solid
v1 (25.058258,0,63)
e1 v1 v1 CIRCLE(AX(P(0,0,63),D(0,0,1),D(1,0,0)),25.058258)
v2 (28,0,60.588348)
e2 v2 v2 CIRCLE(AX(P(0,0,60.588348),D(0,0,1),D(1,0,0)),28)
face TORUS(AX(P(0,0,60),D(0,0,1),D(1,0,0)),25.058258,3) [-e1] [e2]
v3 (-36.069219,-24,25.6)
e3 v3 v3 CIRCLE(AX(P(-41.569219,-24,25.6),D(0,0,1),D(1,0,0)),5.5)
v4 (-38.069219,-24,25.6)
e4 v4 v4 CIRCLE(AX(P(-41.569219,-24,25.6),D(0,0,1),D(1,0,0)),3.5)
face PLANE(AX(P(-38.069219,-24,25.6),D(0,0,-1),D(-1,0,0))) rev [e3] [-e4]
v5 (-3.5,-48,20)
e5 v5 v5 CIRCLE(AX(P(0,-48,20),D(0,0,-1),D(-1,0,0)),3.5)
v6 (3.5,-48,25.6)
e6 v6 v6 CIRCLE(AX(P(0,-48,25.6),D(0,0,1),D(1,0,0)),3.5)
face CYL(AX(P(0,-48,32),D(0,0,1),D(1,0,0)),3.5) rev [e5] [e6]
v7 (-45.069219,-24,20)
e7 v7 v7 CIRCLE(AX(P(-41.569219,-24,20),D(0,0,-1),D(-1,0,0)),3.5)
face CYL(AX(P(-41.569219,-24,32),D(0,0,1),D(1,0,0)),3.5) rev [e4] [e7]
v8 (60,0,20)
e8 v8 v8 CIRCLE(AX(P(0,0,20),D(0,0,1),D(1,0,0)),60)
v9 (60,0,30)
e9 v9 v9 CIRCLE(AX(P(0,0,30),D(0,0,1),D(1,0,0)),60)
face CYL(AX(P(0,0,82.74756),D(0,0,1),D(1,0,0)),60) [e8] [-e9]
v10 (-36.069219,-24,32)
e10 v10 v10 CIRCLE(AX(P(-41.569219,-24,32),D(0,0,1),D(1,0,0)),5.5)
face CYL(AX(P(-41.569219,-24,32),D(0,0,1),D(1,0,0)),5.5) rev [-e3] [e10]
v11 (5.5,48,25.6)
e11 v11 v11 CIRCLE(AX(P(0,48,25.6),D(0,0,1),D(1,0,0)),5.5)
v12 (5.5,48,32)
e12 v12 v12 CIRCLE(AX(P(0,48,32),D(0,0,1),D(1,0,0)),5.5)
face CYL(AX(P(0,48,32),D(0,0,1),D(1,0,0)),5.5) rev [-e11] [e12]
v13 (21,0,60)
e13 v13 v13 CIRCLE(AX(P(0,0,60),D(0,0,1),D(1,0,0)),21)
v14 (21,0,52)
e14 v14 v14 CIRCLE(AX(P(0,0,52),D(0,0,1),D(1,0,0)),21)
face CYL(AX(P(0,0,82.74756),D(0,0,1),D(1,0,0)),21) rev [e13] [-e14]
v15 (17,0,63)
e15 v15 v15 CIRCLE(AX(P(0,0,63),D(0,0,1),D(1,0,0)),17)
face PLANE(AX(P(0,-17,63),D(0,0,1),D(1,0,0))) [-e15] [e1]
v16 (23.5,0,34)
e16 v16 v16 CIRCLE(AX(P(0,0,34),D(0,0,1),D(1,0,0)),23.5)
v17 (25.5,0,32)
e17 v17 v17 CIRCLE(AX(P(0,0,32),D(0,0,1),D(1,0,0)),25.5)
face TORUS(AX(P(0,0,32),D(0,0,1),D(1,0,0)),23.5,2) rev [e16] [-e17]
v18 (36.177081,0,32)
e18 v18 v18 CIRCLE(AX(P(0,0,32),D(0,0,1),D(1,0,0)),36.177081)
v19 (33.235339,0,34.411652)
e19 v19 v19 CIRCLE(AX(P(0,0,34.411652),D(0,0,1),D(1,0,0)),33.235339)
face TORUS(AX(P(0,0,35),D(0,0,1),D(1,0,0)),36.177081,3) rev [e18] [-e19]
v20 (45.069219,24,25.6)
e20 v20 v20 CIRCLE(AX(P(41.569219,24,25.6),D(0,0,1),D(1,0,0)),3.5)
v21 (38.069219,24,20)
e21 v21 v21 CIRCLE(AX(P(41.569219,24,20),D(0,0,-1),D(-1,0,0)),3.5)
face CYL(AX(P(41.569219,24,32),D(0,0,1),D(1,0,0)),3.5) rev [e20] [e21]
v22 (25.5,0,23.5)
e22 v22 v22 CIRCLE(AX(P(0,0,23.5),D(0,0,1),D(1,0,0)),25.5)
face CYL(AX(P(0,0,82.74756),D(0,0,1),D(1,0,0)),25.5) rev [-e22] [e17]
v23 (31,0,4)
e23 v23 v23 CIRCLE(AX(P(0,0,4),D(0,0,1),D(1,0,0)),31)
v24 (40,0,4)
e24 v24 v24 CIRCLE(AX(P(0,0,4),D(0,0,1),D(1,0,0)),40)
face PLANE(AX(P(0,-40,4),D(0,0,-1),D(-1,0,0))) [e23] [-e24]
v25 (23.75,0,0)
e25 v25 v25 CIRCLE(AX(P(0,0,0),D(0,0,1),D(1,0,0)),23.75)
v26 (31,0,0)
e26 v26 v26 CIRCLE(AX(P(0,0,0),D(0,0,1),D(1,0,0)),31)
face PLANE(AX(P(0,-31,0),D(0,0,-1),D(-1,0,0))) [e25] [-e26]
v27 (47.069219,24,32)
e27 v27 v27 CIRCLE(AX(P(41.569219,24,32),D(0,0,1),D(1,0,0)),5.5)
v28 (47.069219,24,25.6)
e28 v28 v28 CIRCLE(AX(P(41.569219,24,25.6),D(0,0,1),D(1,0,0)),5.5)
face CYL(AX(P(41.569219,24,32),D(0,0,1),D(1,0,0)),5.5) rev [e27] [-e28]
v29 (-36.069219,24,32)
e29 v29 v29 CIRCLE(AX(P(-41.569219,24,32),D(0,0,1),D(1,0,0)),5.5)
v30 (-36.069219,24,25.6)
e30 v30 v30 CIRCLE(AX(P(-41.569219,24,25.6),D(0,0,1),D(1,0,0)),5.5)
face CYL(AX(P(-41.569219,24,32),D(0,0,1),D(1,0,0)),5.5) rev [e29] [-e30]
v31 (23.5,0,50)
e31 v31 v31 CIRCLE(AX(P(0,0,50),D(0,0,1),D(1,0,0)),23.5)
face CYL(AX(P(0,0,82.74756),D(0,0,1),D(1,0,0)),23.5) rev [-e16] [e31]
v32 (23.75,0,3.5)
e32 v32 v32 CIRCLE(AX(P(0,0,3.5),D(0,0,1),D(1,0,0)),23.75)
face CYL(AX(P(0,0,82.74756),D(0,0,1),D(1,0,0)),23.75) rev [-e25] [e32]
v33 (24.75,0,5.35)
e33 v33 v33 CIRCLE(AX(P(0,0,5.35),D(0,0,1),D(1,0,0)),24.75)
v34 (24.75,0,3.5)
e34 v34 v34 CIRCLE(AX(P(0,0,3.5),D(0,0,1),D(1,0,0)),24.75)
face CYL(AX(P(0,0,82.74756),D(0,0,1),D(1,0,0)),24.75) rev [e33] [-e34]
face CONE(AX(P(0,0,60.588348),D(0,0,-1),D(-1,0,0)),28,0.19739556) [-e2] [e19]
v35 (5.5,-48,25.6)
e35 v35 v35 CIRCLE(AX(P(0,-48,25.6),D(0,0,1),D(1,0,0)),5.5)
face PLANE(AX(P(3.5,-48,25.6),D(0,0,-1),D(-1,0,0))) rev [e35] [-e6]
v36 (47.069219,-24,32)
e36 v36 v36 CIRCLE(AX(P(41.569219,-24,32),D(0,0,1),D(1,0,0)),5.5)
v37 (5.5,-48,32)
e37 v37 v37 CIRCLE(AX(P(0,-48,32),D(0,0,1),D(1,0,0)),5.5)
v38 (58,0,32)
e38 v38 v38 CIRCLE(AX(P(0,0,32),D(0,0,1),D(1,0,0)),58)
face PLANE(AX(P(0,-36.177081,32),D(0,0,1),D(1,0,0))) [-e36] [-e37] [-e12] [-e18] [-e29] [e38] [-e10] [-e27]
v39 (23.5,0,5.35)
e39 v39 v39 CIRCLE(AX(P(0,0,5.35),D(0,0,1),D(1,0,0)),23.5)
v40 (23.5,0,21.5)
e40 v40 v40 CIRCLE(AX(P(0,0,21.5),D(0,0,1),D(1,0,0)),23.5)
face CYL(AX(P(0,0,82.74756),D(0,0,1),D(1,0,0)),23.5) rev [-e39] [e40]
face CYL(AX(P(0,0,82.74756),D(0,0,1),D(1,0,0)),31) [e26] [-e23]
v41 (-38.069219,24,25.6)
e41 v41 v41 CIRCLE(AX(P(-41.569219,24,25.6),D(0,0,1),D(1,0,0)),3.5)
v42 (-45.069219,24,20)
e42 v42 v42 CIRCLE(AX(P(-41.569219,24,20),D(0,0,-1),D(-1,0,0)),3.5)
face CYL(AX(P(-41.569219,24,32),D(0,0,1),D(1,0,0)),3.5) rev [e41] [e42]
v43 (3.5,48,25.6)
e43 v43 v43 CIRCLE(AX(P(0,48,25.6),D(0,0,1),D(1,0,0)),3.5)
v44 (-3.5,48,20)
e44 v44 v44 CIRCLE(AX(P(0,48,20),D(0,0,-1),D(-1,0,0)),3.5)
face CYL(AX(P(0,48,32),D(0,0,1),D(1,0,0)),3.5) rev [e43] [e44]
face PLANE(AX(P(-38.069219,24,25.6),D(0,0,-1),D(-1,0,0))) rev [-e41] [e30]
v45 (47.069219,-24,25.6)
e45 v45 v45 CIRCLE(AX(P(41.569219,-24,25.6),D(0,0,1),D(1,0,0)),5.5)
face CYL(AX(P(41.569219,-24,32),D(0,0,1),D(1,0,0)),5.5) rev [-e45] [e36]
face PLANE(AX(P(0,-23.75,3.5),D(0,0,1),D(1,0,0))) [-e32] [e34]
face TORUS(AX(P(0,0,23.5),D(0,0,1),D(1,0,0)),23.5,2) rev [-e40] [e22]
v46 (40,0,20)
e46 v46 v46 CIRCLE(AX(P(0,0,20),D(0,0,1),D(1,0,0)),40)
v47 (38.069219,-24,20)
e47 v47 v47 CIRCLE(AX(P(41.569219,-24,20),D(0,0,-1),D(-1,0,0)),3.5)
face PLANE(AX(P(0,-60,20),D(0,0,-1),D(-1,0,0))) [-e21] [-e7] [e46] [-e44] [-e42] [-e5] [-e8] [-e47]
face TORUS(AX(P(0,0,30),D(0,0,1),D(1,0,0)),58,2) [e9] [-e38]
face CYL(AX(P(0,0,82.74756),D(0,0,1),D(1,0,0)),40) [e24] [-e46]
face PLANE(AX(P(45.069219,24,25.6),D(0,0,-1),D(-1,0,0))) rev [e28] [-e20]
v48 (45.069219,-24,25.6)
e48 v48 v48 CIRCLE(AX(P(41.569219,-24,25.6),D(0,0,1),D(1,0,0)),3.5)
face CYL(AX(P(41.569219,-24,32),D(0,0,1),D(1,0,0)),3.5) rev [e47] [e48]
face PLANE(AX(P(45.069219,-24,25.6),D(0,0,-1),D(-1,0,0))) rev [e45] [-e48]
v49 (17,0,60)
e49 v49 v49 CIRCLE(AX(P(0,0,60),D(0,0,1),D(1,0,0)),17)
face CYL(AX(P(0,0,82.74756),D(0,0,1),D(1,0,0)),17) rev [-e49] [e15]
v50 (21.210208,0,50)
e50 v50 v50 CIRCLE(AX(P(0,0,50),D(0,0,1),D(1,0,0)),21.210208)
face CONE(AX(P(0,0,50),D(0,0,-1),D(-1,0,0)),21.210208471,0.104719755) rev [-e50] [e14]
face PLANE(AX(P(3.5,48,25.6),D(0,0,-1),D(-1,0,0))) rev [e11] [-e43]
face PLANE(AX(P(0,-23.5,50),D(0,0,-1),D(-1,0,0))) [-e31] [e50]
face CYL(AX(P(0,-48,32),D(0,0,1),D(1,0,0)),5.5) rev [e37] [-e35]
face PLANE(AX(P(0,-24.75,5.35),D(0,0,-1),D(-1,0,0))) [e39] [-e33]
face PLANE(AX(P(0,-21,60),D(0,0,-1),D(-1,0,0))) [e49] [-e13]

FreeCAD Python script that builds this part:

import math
import FreeCAD as App
import Part
import Sketcher
from FreeCAD import Vector
Q = App.Units.Quantity

doc = App.newDocument("Part")
body = doc.addObject("PartDesign::Body", "Body")

sketch1 = body.newObject("Sketcher::SketchObject", "Sketch")
sketch1.AttachmentSupport = (doc.getObject("YZ_Plane"), [""])
sketch1.MapMode = "FlatFace"
sketch1.addGeometry([
    Part.LineSegment(Vector(-17, 63, 0), Vector(-25.058258, 63, 0)),
    Part.ArcOfCircle(Part.Circle(Vector(-25.058258, 60, 0), Vector(0, 0, 1), 3), math.radians(90), math.radians(168.690068)),
    Part.LineSegment(Vector(-28, 60.588348, 0), Vector(-33.235339, 34.411652, 0)),
    Part.ArcOfCircle(Part.Circle(Vector(-36.177081, 35, 0), Vector(0, 0, 1), 3), math.radians(-90), math.radians(-11.309932)),
    Part.LineSegment(Vector(-36.177081, 32, 0), Vector(-58, 32, 0)),
    Part.ArcOfCircle(Part.Circle(Vector(-58, 30, 0), Vector(0, 0, 1), 2), math.radians(90), math.radians(180)),
    Part.LineSegment(Vector(-60, 30, 0), Vector(-60, 20, 0)),
    Part.LineSegment(Vector(-60, 20, 0), Vector(-40, 20, 0)),
    Part.LineSegment(Vector(-40, 20, 0), Vector(-40, 4, 0)),
    Part.LineSegment(Vector(-40, 4, 0), Vector(-31, 4, 0)),
    Part.LineSegment(Vector(-31, 4, 0), Vector(-31, 0, 0)),
    Part.LineSegment(Vector(-31, 0, 0), Vector(-23.75, 0, 0)),
    Part.LineSegment(Vector(-23.75, 0, 0), Vector(-23.75, 3.5, 0)),
    Part.LineSegment(Vector(-23.75, 3.5, 0), Vector(-24.75, 3.5, 0)),
    Part.LineSegment(Vector(-24.75, 3.5, 0), Vector(-24.75, 5.35, 0)),
    Part.LineSegment(Vector(-24.75, 5.35, 0), Vector(-23.5, 5.35, 0)),
    Part.LineSegment(Vector(-23.5, 5.35, 0), Vector(-23.5, 21.5, 0)),
    Part.ArcOfCircle(Part.Circle(Vector(-23.5, 23.5, 0), Vector(0, 0, 1), 2), math.radians(-180), math.radians(-90)),
    Part.LineSegment(Vector(-25.5, 23.5, 0), Vector(-25.5, 32, 0)),
    Part.ArcOfCircle(Part.Circle(Vector(-23.5, 32, 0), Vector(0, 0, 1), 2), math.radians(90), math.radians(180)),
    Part.LineSegment(Vector(-23.5, 34, 0), Vector(-23.5, 50, 0)),
    Part.LineSegment(Vector(-23.5, 50, 0), Vector(-21.210208, 50, 0)),
    Part.LineSegment(Vector(-21.210208, 50, 0), Vector(-21, 52, 0)),
    Part.LineSegment(Vector(-21, 52, 0), Vector(-21, 60, 0)),
    Part.LineSegment(Vector(-21, 60, 0), Vector(-17, 60, 0)),
    Part.LineSegment(Vector(-17, 60, 0), Vector(-17, 63, 0)),
], False)
sketch1.addConstraint([
    Sketcher.Constraint("Tangent", 0, 2, 1, 1),
    Sketcher.Constraint("Tangent", 1, 2, 2, 1),
    Sketcher.Constraint("Tangent", 2, 2, 3, 2),
    Sketcher.Constraint("Tangent", 3, 1, 4, 1),
    Sketcher.Constraint("Tangent", 4, 2, 5, 1),
    Sketcher.Constraint("Tangent", 5, 2, 6, 1),
    Sketcher.Constraint("Coincident", 6, 2, 7, 1),
    Sketcher.Constraint("Coincident", 7, 2, 8, 1),
    Sketcher.Constraint("Coincident", 8, 2, 9, 1),
    Sketcher.Constraint("Coincident", 9, 2, 10, 1),
    Sketcher.Constraint("Coincident", 10, 2, 11, 1),
    Sketcher.Constraint("Coincident", 11, 2, 12, 1),
    Sketcher.Constraint("Coincident", 12, 2, 13, 1),
    Sketcher.Constraint("Coincident", 13, 2, 14, 1),
    Sketcher.Constraint("Coincident", 14, 2, 15, 1),
    Sketcher.Constraint("Coincident", 15, 2, 16, 1),
    Sketcher.Constraint("Coincident", 16, 2, 17, 2),
    Sketcher.Constraint("Tangent", 17, 1, 18, 1),
    Sketcher.Constraint("Tangent", 18, 2, 19, 2),
    Sketcher.Constraint("Coincident", 19, 1, 20, 1),
    Sketcher.Constraint("Coincident", 20, 2, 21, 1),
    Sketcher.Constraint("Coincident", 21, 2, 22, 1),
    Sketcher.Constraint("Coincident", 22, 2, 23, 1),
    Sketcher.Constraint("Coincident", 23, 2, 24, 1),
    Sketcher.Constraint("Coincident", 24, 2, 25, 1),
    Sketcher.Constraint("Coincident", 25, 2, 0, 1),
    Sketcher.Constraint("Horizontal", 0),
    Sketcher.Constraint("Horizontal", 4),
    Sketcher.Constraint("Vertical", 6),
    Sketcher.Constraint("Horizontal", 7),
    Sketcher.Constraint("Vertical", 8),
    Sketcher.Constraint("Horizontal", 9),
    Sketcher.Constraint("Vertical", 10),
    Sketcher.Constraint("Horizontal", 11),
    Sketcher.Constraint("Vertical", 12),
    Sketcher.Constraint("Horizontal", 13),
    Sketcher.Constraint("Vertical", 14),
    Sketcher.Constraint("Horizontal", 15),
    Sketcher.Constraint("Vertical", 16),
    Sketcher.Constraint("Vertical", 18),
    Sketcher.Constraint("Vertical", 20),
    Sketcher.Constraint("Horizontal", 21),
    Sketcher.Constraint("Vertical", 23),
    Sketcher.Constraint("Horizontal", 24),
    Sketcher.Constraint("Vertical", 25),
    Sketcher.Constraint("Equal", 1, 3),
    Sketcher.Constraint("Equal", 5, 17),
    Sketcher.Constraint("Equal", 17, 19),
    Sketcher.Constraint("PointOnObject", 10, 2, -1),
    Sketcher.Constraint("Horizontal", 19, 3, 3, 1),
    Sketcher.Constraint("Horizontal", 1, 3, 23, 2),
    Sketcher.Constraint("Vertical", 19, 3, 15, 2),
    Sketcher.Constraint("Vertical", 16, 2, 19, 1),
    Sketcher.Constraint("Equal", 24, 10),
    Sketcher.Constraint("Equal", 8, 20),
    Sketcher.Constraint("Radius", 1, Q("3 mm")),
    Sketcher.Constraint("Radius", 5, Q("2 mm")),
    Sketcher.Constraint("DistanceX", 7, 1, 7, 2, Q("20 mm")),
    Sketcher.Constraint("DistanceX", 9, 1, 9, 2, Q("9 mm")),
    Sketcher.Constraint("DistanceX", 13, 2, 13, 1, Q("1 mm")),
    Sketcher.Constraint("DistanceX", 24, 1, 24, 2, Q("4 mm")),
    Sketcher.Constraint("DistanceY", 6, 2, 6, 1, Q("10 mm")),
    Sketcher.Constraint("DistanceY", 8, 2, 8, 1, Q("16 mm")),
    Sketcher.Constraint("DistanceY", 23, 1, 23, 2, Q("8 mm")),
    Sketcher.Constraint("Angle", 22, Q("84 deg")),
    Sketcher.Constraint("DistanceY", 12, 1, 12, 2, Q("3.5 mm")),
    Sketcher.Constraint("DistanceY", 18, 1, 18, 2, Q("8.5 mm")),
    Sketcher.Constraint("DistanceY", -1, 1, 1, 3, Q("60 mm")),
    Sketcher.Constraint("DistanceX", 5, 3, -1, 1, Q("58 mm")),
    Sketcher.Constraint("DistanceX", 1, 2, -1, 1, Q("28 mm")),
    Sketcher.Constraint("DistanceX", 22, 2, -1, 1, Q("21 mm")),
    Sketcher.Constraint("DistanceX", 11, 1, 11, 2, Q("7.25 mm")),
    Sketcher.Constraint("DistanceX", 15, 1, 15, 2, Q("1.25 mm")),
    Sketcher.Constraint("DistanceY", 14, 1, 14, 2, Q("1.85 mm")),
    Sketcher.Constraint("DistanceX", 4, 2, 4, 1, Q("21.822919 mm")),
])
revolution = body.newObject("PartDesign::Revolution", "Revolution")
revolution.Profile = sketch1
revolution.ReferenceAxis = (sketch1, ["V_Axis"])
revolution.Angle = 360

sketch2 = body.newObject("Sketcher::SketchObject", "Sketch001")
sketch2.AttachmentSupport = (doc.getObject("XY_Plane"), [""])
sketch2.MapMode = "FlatFace"
sketch2.AttachmentOffset = App.Placement(Vector(0, 0, 32), App.Rotation())
sketch2.addGeometry(Part.Circle(Vector(0, 48, 0), Vector(0, 0, 1), 3.5), False)
sketch2.addConstraint([
    Sketcher.Constraint("PointOnObject", 0, 3, -2),
    Sketcher.Constraint("Diameter", 0, Q("7 mm")),
    Sketcher.Constraint("DistanceY", -1, 1, 0, 3, Q("48 mm")),
])
doc.recompute()
hole = body.newObject("PartDesign::Hole", "Hole")
hole.Profile = sketch2
hole.ThreadType = "None"
hole.Diameter = 7
hole.DepthType = "Dimension"
hole.Depth = 12
hole.DrillPoint = "Flat"
hole.HoleCutType = "Counterbore"
hole.HoleCutDiameter = 11
hole.HoleCutDepth = 6.4
doc.recompute()

polarpattern = body.newObject("PartDesign::PolarPattern", "PolarPattern")
polarpattern.Originals = [hole]
polarpattern.Axis = (doc.getObject("Z_Axis"), [""])
polarpattern.Angle = 360
polarpattern.Occurrences = 6
body.Tip = polarpattern

doc.recompute()
